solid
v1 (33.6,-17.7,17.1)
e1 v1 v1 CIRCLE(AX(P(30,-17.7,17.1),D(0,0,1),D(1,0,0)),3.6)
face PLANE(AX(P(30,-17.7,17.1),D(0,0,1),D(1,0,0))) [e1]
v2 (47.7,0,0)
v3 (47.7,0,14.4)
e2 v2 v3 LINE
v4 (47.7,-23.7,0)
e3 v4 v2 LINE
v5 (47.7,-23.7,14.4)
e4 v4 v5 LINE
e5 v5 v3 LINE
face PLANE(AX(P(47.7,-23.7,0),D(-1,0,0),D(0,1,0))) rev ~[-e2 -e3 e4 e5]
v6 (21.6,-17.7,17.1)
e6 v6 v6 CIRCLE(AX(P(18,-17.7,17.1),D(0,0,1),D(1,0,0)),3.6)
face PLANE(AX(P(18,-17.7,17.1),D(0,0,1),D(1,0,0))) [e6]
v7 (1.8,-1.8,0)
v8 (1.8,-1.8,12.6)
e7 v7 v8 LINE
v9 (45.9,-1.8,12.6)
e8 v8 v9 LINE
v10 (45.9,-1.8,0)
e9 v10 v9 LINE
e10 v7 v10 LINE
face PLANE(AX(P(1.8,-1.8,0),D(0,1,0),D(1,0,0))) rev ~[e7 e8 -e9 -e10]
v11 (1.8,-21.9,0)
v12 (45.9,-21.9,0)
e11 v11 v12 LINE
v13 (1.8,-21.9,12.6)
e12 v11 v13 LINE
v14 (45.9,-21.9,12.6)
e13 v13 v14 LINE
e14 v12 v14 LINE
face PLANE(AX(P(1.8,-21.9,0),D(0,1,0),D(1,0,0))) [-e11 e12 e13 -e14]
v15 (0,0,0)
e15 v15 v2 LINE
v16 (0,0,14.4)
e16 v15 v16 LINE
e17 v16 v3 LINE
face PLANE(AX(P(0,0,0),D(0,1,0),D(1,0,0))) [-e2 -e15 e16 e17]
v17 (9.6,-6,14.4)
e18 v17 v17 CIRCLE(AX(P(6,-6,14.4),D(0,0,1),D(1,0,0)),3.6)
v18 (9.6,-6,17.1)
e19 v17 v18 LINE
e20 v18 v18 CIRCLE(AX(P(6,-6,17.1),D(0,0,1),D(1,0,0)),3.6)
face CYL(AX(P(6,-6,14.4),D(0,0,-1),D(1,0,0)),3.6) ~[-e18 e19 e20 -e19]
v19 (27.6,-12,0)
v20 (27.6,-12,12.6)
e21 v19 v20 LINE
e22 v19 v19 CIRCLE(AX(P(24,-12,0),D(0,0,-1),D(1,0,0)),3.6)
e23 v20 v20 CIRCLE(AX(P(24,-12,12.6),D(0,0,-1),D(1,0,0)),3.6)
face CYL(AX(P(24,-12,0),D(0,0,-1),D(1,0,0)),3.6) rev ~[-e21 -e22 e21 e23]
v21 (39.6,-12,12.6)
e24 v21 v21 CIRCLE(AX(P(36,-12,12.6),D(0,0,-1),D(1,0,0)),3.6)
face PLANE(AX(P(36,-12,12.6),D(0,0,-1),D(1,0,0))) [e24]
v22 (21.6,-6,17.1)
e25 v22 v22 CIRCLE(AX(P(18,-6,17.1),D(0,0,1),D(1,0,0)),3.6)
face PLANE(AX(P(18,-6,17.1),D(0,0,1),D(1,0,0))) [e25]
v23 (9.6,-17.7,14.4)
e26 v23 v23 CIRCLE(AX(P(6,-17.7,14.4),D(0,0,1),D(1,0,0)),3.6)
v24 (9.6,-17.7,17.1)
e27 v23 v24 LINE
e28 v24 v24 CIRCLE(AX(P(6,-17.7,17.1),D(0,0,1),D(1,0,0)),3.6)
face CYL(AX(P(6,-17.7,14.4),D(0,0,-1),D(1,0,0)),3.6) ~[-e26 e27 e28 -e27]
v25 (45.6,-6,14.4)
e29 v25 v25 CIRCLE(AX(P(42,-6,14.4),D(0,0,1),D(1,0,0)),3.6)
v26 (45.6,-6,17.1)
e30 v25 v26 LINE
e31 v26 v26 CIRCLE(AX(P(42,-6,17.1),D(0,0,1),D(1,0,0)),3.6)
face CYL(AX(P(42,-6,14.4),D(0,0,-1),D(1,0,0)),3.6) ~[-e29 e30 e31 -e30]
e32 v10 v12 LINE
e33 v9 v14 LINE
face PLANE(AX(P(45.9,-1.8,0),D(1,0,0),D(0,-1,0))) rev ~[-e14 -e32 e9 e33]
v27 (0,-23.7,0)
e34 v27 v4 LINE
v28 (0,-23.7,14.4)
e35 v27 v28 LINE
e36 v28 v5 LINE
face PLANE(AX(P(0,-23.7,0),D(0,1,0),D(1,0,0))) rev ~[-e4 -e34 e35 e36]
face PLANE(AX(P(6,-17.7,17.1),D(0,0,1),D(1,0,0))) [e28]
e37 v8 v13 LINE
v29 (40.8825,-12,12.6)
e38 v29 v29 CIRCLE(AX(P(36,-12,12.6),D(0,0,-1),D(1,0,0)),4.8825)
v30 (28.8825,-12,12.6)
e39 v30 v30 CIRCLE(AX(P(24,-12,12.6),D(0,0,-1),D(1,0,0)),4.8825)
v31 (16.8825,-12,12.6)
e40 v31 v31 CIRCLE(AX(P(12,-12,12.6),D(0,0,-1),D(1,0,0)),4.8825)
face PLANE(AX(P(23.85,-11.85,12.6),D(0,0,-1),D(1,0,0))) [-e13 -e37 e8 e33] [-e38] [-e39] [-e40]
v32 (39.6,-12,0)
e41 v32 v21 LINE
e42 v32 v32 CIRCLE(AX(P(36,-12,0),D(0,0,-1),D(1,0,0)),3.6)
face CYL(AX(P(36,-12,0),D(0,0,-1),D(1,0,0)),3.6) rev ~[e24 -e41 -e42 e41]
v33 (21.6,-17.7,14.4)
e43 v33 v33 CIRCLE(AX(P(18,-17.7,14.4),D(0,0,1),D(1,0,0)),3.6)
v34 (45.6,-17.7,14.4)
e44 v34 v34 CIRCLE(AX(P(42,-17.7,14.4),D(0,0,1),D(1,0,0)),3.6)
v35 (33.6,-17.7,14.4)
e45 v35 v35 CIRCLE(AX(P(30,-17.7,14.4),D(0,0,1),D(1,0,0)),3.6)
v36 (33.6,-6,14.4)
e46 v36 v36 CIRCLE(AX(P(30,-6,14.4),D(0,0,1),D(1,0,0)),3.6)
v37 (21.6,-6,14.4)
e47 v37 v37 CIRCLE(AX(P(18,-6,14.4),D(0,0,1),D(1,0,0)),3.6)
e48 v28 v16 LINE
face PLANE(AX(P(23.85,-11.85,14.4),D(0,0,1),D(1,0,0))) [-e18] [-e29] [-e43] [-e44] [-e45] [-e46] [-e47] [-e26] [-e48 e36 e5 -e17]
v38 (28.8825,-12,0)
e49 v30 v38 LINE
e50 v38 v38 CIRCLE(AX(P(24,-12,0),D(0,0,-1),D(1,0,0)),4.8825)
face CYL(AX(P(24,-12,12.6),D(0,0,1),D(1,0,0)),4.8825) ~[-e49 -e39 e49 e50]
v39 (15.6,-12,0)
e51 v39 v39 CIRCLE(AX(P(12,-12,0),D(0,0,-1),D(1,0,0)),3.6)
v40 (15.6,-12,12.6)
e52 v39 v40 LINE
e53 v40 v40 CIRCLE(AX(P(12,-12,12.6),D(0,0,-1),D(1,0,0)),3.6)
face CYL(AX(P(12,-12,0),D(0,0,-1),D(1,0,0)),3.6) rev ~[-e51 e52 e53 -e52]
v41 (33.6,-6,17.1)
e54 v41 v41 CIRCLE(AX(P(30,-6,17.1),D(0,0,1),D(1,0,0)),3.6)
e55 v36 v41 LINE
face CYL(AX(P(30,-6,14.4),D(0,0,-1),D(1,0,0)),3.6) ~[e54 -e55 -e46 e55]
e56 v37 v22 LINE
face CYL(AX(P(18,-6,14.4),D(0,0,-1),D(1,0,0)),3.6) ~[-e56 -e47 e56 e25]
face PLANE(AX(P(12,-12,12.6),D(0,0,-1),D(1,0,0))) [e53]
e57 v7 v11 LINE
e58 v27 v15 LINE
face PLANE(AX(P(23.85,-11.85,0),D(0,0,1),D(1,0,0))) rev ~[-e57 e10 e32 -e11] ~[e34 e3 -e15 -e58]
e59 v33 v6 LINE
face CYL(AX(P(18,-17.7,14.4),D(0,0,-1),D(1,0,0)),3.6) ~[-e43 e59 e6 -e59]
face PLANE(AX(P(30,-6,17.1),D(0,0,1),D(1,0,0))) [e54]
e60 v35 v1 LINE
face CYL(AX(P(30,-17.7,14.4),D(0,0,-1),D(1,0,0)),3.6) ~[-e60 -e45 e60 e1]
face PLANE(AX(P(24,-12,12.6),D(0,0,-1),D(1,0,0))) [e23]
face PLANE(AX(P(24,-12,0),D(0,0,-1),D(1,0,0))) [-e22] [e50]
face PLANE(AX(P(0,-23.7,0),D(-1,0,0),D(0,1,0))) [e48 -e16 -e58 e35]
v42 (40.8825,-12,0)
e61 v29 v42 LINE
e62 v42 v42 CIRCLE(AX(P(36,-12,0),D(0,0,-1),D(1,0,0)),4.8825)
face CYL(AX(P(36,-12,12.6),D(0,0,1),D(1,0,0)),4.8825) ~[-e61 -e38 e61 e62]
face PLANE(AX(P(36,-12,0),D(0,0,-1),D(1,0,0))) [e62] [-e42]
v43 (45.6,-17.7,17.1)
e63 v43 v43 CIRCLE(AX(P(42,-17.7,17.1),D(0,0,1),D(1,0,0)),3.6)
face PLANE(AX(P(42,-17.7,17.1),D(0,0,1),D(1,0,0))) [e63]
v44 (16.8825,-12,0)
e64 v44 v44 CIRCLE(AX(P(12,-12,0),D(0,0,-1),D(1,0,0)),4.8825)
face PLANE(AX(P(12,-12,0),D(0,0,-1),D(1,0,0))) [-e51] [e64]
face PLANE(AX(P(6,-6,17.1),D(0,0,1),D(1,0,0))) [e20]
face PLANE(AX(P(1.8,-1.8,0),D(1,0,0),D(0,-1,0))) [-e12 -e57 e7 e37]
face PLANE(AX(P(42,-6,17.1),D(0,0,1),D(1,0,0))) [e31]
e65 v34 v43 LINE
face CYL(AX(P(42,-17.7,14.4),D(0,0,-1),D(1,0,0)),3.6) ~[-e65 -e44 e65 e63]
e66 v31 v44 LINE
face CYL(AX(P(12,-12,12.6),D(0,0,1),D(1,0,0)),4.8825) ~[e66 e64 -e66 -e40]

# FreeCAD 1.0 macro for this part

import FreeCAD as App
import Part
import Sketcher
from FreeCAD import Vector

doc = App.newDocument("Part")
params = doc.addObject("Spreadsheet::Sheet", "Params")
for row, (alias, value) in enumerate([
    ("sketch1_width", "47.7 mm"),
    ("sketch1_height", "23.7 mm"),
    ("pad1_length", "14.4 mm"),
    ("sketch2_width", "44.1 mm"),
    ("sketch2_height", "20.1 mm"),
    ("pocket1_length", "12.6 mm"),
    ("sketch3_diameter", "7.2 mm"),
    ("pad2_length", "2.7 mm"),
    ("linearpattern_pitch", "12 mm"),
    ("pad3_length", "12.6 mm"),
    ("linearpattern2_pitch", "12 mm"),
    ("sketch5_diameter", "7.2 mm"),
    ("pocket2_length", "12.6 mm"),
    ("linearpattern3_pitch", "12 mm"),
], start=1):
    params.set(f"A{row}", alias)
    params.set(f"B{row}", "=" + value)
    params.setAlias(f"B{row}", alias)

body = doc.addObject("PartDesign::Body", "Body")

# Sketch on XY plane
sketch1 = body.newObject("Sketcher::SketchObject", "Sketch")
sketch1.AttachmentSupport = (doc.getObject("XY_Plane"), [""])
sketch1.MapMode = "FlatFace"
sketch1.addGeometry(Part.LineSegment(Vector(0, 0, 0), Vector(0, -23.7, 0)), False)
sketch1.addGeometry(Part.LineSegment(Vector(0, -23.7, 0), Vector(47.7, -23.7, 0)), False)
sketch1.addGeometry(Part.LineSegment(Vector(47.7, -23.7, 0), Vector(47.7, 0, 0)), False)
sketch1.addGeometry(Part.LineSegment(Vector(47.7, 0, 0), Vector(0, 0, 0)), False)
sketch1.addConstraint(Sketcher.Constraint("Coincident", 0, 2, 1, 1))
sketch1.addConstraint(Sketcher.Constraint("Coincident", 1, 2, 2, 1))
sketch1.addConstraint(Sketcher.Constraint("Coincident", 2, 2, 3, 1))
sketch1.addConstraint(Sketcher.Constraint("Coincident", 3, 2, 0, 1))
sketch1.addConstraint(Sketcher.Constraint("Vertical", 0))
sketch1.addConstraint(Sketcher.Constraint("Horizontal", 1))
sketch1.addConstraint(Sketcher.Constraint("Vertical", 2))
sketch1.addConstraint(Sketcher.Constraint("Horizontal", 3))
sketch1.addConstraint(Sketcher.Constraint("Coincident", 3, 2, -1, 1))
sketch1.addConstraint(Sketcher.Constraint("DistanceX", 1, 1, 1, 2, 47.7))
sketch1.addConstraint(Sketcher.Constraint("DistanceY", 0, 2, 0, 1, 23.7))
sketch1.setExpression("Constraints[9]", "Params.sketch1_width")
sketch1.setExpression("Constraints[10]", "Params.sketch1_height")
pad1 = body.newObject("PartDesign::Pad", "Pad")
pad1.Profile = sketch1
pad1.setExpression("Length", "Params.pad1_length")

# Sketch on XY plane
sketch2 = body.newObject("Sketcher::SketchObject", "Sketch001")
sketch2.AttachmentSupport = (doc.getObject("XY_Plane"), [""])
sketch2.MapMode = "FlatFace"
sketch2.addGeometry(Part.LineSegment(Vector(1.8, -21.9, 0), Vector(1.8, -1.8, 0)), False)
sketch2.addGeometry(Part.LineSegment(Vector(1.8, -1.8, 0), Vector(45.9, -1.8, 0)), False)
sketch2.addGeometry(Part.LineSegment(Vector(45.9, -1.8, 0), Vector(45.9, -21.9, 0)), False)
sketch2.addGeometry(Part.LineSegment(Vector(45.9, -21.9, 0), Vector(1.8, -21.9, 0)), False)
sketch2.addConstraint(Sketcher.Constraint("Coincident", 0, 2, 1, 1))
sketch2.addConstraint(Sketcher.Constraint("Coincident", 1, 2, 2, 1))
sketch2.addConstraint(Sketcher.Constraint("Coincident", 2, 2, 3, 1))
sketch2.addConstraint(Sketcher.Constraint("Coincident", 3, 2, 0, 1))
sketch2.addConstraint(Sketcher.Constraint("Vertical", 0))
sketch2.addConstraint(Sketcher.Constraint("Horizontal", 1))
sketch2.addConstraint(Sketcher.Constraint("Vertical", 2))
sketch2.addConstraint(Sketcher.Constraint("Horizontal", 3))
sketch2.addConstraint(Sketcher.Constraint("DistanceX", 1, 1, 1, 2, 44.1))
sketch2.addConstraint(Sketcher.Constraint("DistanceY", 0, 1, 0, 2, 20.1))
sketch2.addConstraint(Sketcher.Constraint("DistanceX", -1, 1, 0, 2, 1.8))
sketch2.addConstraint(Sketcher.Constraint("DistanceY", 0, 2, -1, 1, 1.8))
sketch2.setExpression("Constraints[8]", "Params.sketch2_width")
sketch2.setExpression("Constraints[9]", "Params.sketch2_height")
pocket1 = body.newObject("PartDesign::Pocket", "Pocket")
pocket1.Profile = sketch2
pocket1.setExpression("Length", "Params.pocket1_length")
pocket1.Reversed = True

# Sketch on XY plane
sketch3 = body.newObject("Sketcher::SketchObject", "Sketch002")
sketch3.AttachmentSupport = (doc.getObject("XY_Plane"), [""])
sketch3.MapMode = "FlatFace"
sketch3.AttachmentOffset = App.Placement(Vector(0, 0, 14.4), App.Rotation())
sketch3.addGeometry(Part.Circle(Vector(6, -6, 0), Vector(0, 0, 1), 3.6), False)
sketch3.addGeometry(Part.Circle(Vector(6, -17.7, 0), Vector(0, 0, 1), 3.6), False)
sketch3.addConstraint(Sketcher.Constraint("Equal", 0, 1))
sketch3.addConstraint(Sketcher.Constraint("Vertical", 0, 3, 1, 3))
sketch3.addConstraint(Sketcher.Constraint("Diameter", 0, 7.2))
sketch3.addConstraint(Sketcher.Constraint("DistanceX", -1, 1, 0, 3, 6.0))
sketch3.addConstraint(Sketcher.Constraint("DistanceY", 0, 3, -1, 1, 6.0))
sketch3.addConstraint(Sketcher.Constraint("DistanceY", 1, 3, -1, 1, 17.7))
sketch3.setExpression("Constraints[2]", "Params.sketch3_diameter")
pad2 = body.newObject("PartDesign::Pad", "Pad001")
pad2.Profile = sketch3
pad2.setExpression("Length", "Params.pad2_length")
doc.recompute()

linearpattern = body.newObject("PartDesign::LinearPattern", "LinearPattern")
linearpattern.Originals = [pad2]
linearpattern.Direction = (doc.getObject("X_Axis"), [""])
linearpattern.Mode = "offset"
linearpattern.setExpression("Offset", "Params.linearpattern_pitch")
linearpattern.Occurrences = 4
body.Tip = linearpattern

# Sketch on XY plane
sketch4 = body.newObject("Sketcher::SketchObject", "Sketch003")
sketch4.AttachmentSupport = (doc.getObject("XY_Plane"), [""])
sketch4.MapMode = "FlatFace"
sketch4.AttachmentOffset = App.Placement(Vector(0, 0, 12.6), App.Rotation())
sketch4.addGeometry(Part.Circle(Vector(12, -12, 0), Vector(0, 0, 1), 4.8825), False)
sketch4.addConstraint(Sketcher.Constraint("Diameter", 0, 9.765))
sketch4.addConstraint(Sketcher.Constraint("DistanceX", -1, 1, 0, 3, 12.0))
sketch4.addConstraint(Sketcher.Constraint("DistanceY", 0, 3, -1, 1, 12.0))
pad3 = body.newObject("PartDesign::Pad", "Pad002")
pad3.Profile = sketch4
pad3.setExpression("Length", "Params.pad3_length")
pad3.Reversed = True
doc.recompute()

linearpattern2 = body.newObject("PartDesign::LinearPattern", "LinearPattern001")
linearpattern2.Originals = [pad3]
linearpattern2.Direction = (doc.getObject("X_Axis"), [""])
linearpattern2.Mode = "offset"
linearpattern2.setExpression("Offset", "Params.linearpattern2_pitch")
linearpattern2.Occurrences = 3
body.Tip = linearpattern2

# Sketch on XY plane
sketch5 = body.newObject("Sketcher::SketchObject", "Sketch004")
sketch5.AttachmentSupport = (doc.getObject("XY_Plane"), [""])
sketch5.MapMode = "FlatFace"
sketch5.addGeometry(Part.Circle(Vector(12, -12, 0), Vector(0, 0, 1), 3.6), False)
sketch5.addConstraint(Sketcher.Constraint("Diameter", 0, 7.2))
sketch5.addConstraint(Sketcher.Constraint("DistanceX", -1, 1, 0, 3, 12.0))
sketch5.addConstraint(Sketcher.Constraint("DistanceY", 0, 3, -1, 1, 12.0))
sketch5.setExpression("Constraints[0]", "Params.sketch5_diameter")
pocket2 = body.newObject("PartDesign::Pocket", "Pocket001")
pocket2.Profile = sketch5
pocket2.setExpression("Length", "Params.pocket2_length")
pocket2.Reversed = True
doc.recompute()

linearpattern3 = body.newObject("PartDesign::LinearPattern", "LinearPattern002")
linearpattern3.Originals = [pocket2]
linearpattern3.Direction = (doc.getObject("X_Axis"), [""])
linearpattern3.Mode = "offset"
linearpattern3.setExpression("Offset", "Params.linearpattern3_pitch")
linearpattern3.Occurrences = 3
body.Tip = linearpattern3

doc.recompute()
